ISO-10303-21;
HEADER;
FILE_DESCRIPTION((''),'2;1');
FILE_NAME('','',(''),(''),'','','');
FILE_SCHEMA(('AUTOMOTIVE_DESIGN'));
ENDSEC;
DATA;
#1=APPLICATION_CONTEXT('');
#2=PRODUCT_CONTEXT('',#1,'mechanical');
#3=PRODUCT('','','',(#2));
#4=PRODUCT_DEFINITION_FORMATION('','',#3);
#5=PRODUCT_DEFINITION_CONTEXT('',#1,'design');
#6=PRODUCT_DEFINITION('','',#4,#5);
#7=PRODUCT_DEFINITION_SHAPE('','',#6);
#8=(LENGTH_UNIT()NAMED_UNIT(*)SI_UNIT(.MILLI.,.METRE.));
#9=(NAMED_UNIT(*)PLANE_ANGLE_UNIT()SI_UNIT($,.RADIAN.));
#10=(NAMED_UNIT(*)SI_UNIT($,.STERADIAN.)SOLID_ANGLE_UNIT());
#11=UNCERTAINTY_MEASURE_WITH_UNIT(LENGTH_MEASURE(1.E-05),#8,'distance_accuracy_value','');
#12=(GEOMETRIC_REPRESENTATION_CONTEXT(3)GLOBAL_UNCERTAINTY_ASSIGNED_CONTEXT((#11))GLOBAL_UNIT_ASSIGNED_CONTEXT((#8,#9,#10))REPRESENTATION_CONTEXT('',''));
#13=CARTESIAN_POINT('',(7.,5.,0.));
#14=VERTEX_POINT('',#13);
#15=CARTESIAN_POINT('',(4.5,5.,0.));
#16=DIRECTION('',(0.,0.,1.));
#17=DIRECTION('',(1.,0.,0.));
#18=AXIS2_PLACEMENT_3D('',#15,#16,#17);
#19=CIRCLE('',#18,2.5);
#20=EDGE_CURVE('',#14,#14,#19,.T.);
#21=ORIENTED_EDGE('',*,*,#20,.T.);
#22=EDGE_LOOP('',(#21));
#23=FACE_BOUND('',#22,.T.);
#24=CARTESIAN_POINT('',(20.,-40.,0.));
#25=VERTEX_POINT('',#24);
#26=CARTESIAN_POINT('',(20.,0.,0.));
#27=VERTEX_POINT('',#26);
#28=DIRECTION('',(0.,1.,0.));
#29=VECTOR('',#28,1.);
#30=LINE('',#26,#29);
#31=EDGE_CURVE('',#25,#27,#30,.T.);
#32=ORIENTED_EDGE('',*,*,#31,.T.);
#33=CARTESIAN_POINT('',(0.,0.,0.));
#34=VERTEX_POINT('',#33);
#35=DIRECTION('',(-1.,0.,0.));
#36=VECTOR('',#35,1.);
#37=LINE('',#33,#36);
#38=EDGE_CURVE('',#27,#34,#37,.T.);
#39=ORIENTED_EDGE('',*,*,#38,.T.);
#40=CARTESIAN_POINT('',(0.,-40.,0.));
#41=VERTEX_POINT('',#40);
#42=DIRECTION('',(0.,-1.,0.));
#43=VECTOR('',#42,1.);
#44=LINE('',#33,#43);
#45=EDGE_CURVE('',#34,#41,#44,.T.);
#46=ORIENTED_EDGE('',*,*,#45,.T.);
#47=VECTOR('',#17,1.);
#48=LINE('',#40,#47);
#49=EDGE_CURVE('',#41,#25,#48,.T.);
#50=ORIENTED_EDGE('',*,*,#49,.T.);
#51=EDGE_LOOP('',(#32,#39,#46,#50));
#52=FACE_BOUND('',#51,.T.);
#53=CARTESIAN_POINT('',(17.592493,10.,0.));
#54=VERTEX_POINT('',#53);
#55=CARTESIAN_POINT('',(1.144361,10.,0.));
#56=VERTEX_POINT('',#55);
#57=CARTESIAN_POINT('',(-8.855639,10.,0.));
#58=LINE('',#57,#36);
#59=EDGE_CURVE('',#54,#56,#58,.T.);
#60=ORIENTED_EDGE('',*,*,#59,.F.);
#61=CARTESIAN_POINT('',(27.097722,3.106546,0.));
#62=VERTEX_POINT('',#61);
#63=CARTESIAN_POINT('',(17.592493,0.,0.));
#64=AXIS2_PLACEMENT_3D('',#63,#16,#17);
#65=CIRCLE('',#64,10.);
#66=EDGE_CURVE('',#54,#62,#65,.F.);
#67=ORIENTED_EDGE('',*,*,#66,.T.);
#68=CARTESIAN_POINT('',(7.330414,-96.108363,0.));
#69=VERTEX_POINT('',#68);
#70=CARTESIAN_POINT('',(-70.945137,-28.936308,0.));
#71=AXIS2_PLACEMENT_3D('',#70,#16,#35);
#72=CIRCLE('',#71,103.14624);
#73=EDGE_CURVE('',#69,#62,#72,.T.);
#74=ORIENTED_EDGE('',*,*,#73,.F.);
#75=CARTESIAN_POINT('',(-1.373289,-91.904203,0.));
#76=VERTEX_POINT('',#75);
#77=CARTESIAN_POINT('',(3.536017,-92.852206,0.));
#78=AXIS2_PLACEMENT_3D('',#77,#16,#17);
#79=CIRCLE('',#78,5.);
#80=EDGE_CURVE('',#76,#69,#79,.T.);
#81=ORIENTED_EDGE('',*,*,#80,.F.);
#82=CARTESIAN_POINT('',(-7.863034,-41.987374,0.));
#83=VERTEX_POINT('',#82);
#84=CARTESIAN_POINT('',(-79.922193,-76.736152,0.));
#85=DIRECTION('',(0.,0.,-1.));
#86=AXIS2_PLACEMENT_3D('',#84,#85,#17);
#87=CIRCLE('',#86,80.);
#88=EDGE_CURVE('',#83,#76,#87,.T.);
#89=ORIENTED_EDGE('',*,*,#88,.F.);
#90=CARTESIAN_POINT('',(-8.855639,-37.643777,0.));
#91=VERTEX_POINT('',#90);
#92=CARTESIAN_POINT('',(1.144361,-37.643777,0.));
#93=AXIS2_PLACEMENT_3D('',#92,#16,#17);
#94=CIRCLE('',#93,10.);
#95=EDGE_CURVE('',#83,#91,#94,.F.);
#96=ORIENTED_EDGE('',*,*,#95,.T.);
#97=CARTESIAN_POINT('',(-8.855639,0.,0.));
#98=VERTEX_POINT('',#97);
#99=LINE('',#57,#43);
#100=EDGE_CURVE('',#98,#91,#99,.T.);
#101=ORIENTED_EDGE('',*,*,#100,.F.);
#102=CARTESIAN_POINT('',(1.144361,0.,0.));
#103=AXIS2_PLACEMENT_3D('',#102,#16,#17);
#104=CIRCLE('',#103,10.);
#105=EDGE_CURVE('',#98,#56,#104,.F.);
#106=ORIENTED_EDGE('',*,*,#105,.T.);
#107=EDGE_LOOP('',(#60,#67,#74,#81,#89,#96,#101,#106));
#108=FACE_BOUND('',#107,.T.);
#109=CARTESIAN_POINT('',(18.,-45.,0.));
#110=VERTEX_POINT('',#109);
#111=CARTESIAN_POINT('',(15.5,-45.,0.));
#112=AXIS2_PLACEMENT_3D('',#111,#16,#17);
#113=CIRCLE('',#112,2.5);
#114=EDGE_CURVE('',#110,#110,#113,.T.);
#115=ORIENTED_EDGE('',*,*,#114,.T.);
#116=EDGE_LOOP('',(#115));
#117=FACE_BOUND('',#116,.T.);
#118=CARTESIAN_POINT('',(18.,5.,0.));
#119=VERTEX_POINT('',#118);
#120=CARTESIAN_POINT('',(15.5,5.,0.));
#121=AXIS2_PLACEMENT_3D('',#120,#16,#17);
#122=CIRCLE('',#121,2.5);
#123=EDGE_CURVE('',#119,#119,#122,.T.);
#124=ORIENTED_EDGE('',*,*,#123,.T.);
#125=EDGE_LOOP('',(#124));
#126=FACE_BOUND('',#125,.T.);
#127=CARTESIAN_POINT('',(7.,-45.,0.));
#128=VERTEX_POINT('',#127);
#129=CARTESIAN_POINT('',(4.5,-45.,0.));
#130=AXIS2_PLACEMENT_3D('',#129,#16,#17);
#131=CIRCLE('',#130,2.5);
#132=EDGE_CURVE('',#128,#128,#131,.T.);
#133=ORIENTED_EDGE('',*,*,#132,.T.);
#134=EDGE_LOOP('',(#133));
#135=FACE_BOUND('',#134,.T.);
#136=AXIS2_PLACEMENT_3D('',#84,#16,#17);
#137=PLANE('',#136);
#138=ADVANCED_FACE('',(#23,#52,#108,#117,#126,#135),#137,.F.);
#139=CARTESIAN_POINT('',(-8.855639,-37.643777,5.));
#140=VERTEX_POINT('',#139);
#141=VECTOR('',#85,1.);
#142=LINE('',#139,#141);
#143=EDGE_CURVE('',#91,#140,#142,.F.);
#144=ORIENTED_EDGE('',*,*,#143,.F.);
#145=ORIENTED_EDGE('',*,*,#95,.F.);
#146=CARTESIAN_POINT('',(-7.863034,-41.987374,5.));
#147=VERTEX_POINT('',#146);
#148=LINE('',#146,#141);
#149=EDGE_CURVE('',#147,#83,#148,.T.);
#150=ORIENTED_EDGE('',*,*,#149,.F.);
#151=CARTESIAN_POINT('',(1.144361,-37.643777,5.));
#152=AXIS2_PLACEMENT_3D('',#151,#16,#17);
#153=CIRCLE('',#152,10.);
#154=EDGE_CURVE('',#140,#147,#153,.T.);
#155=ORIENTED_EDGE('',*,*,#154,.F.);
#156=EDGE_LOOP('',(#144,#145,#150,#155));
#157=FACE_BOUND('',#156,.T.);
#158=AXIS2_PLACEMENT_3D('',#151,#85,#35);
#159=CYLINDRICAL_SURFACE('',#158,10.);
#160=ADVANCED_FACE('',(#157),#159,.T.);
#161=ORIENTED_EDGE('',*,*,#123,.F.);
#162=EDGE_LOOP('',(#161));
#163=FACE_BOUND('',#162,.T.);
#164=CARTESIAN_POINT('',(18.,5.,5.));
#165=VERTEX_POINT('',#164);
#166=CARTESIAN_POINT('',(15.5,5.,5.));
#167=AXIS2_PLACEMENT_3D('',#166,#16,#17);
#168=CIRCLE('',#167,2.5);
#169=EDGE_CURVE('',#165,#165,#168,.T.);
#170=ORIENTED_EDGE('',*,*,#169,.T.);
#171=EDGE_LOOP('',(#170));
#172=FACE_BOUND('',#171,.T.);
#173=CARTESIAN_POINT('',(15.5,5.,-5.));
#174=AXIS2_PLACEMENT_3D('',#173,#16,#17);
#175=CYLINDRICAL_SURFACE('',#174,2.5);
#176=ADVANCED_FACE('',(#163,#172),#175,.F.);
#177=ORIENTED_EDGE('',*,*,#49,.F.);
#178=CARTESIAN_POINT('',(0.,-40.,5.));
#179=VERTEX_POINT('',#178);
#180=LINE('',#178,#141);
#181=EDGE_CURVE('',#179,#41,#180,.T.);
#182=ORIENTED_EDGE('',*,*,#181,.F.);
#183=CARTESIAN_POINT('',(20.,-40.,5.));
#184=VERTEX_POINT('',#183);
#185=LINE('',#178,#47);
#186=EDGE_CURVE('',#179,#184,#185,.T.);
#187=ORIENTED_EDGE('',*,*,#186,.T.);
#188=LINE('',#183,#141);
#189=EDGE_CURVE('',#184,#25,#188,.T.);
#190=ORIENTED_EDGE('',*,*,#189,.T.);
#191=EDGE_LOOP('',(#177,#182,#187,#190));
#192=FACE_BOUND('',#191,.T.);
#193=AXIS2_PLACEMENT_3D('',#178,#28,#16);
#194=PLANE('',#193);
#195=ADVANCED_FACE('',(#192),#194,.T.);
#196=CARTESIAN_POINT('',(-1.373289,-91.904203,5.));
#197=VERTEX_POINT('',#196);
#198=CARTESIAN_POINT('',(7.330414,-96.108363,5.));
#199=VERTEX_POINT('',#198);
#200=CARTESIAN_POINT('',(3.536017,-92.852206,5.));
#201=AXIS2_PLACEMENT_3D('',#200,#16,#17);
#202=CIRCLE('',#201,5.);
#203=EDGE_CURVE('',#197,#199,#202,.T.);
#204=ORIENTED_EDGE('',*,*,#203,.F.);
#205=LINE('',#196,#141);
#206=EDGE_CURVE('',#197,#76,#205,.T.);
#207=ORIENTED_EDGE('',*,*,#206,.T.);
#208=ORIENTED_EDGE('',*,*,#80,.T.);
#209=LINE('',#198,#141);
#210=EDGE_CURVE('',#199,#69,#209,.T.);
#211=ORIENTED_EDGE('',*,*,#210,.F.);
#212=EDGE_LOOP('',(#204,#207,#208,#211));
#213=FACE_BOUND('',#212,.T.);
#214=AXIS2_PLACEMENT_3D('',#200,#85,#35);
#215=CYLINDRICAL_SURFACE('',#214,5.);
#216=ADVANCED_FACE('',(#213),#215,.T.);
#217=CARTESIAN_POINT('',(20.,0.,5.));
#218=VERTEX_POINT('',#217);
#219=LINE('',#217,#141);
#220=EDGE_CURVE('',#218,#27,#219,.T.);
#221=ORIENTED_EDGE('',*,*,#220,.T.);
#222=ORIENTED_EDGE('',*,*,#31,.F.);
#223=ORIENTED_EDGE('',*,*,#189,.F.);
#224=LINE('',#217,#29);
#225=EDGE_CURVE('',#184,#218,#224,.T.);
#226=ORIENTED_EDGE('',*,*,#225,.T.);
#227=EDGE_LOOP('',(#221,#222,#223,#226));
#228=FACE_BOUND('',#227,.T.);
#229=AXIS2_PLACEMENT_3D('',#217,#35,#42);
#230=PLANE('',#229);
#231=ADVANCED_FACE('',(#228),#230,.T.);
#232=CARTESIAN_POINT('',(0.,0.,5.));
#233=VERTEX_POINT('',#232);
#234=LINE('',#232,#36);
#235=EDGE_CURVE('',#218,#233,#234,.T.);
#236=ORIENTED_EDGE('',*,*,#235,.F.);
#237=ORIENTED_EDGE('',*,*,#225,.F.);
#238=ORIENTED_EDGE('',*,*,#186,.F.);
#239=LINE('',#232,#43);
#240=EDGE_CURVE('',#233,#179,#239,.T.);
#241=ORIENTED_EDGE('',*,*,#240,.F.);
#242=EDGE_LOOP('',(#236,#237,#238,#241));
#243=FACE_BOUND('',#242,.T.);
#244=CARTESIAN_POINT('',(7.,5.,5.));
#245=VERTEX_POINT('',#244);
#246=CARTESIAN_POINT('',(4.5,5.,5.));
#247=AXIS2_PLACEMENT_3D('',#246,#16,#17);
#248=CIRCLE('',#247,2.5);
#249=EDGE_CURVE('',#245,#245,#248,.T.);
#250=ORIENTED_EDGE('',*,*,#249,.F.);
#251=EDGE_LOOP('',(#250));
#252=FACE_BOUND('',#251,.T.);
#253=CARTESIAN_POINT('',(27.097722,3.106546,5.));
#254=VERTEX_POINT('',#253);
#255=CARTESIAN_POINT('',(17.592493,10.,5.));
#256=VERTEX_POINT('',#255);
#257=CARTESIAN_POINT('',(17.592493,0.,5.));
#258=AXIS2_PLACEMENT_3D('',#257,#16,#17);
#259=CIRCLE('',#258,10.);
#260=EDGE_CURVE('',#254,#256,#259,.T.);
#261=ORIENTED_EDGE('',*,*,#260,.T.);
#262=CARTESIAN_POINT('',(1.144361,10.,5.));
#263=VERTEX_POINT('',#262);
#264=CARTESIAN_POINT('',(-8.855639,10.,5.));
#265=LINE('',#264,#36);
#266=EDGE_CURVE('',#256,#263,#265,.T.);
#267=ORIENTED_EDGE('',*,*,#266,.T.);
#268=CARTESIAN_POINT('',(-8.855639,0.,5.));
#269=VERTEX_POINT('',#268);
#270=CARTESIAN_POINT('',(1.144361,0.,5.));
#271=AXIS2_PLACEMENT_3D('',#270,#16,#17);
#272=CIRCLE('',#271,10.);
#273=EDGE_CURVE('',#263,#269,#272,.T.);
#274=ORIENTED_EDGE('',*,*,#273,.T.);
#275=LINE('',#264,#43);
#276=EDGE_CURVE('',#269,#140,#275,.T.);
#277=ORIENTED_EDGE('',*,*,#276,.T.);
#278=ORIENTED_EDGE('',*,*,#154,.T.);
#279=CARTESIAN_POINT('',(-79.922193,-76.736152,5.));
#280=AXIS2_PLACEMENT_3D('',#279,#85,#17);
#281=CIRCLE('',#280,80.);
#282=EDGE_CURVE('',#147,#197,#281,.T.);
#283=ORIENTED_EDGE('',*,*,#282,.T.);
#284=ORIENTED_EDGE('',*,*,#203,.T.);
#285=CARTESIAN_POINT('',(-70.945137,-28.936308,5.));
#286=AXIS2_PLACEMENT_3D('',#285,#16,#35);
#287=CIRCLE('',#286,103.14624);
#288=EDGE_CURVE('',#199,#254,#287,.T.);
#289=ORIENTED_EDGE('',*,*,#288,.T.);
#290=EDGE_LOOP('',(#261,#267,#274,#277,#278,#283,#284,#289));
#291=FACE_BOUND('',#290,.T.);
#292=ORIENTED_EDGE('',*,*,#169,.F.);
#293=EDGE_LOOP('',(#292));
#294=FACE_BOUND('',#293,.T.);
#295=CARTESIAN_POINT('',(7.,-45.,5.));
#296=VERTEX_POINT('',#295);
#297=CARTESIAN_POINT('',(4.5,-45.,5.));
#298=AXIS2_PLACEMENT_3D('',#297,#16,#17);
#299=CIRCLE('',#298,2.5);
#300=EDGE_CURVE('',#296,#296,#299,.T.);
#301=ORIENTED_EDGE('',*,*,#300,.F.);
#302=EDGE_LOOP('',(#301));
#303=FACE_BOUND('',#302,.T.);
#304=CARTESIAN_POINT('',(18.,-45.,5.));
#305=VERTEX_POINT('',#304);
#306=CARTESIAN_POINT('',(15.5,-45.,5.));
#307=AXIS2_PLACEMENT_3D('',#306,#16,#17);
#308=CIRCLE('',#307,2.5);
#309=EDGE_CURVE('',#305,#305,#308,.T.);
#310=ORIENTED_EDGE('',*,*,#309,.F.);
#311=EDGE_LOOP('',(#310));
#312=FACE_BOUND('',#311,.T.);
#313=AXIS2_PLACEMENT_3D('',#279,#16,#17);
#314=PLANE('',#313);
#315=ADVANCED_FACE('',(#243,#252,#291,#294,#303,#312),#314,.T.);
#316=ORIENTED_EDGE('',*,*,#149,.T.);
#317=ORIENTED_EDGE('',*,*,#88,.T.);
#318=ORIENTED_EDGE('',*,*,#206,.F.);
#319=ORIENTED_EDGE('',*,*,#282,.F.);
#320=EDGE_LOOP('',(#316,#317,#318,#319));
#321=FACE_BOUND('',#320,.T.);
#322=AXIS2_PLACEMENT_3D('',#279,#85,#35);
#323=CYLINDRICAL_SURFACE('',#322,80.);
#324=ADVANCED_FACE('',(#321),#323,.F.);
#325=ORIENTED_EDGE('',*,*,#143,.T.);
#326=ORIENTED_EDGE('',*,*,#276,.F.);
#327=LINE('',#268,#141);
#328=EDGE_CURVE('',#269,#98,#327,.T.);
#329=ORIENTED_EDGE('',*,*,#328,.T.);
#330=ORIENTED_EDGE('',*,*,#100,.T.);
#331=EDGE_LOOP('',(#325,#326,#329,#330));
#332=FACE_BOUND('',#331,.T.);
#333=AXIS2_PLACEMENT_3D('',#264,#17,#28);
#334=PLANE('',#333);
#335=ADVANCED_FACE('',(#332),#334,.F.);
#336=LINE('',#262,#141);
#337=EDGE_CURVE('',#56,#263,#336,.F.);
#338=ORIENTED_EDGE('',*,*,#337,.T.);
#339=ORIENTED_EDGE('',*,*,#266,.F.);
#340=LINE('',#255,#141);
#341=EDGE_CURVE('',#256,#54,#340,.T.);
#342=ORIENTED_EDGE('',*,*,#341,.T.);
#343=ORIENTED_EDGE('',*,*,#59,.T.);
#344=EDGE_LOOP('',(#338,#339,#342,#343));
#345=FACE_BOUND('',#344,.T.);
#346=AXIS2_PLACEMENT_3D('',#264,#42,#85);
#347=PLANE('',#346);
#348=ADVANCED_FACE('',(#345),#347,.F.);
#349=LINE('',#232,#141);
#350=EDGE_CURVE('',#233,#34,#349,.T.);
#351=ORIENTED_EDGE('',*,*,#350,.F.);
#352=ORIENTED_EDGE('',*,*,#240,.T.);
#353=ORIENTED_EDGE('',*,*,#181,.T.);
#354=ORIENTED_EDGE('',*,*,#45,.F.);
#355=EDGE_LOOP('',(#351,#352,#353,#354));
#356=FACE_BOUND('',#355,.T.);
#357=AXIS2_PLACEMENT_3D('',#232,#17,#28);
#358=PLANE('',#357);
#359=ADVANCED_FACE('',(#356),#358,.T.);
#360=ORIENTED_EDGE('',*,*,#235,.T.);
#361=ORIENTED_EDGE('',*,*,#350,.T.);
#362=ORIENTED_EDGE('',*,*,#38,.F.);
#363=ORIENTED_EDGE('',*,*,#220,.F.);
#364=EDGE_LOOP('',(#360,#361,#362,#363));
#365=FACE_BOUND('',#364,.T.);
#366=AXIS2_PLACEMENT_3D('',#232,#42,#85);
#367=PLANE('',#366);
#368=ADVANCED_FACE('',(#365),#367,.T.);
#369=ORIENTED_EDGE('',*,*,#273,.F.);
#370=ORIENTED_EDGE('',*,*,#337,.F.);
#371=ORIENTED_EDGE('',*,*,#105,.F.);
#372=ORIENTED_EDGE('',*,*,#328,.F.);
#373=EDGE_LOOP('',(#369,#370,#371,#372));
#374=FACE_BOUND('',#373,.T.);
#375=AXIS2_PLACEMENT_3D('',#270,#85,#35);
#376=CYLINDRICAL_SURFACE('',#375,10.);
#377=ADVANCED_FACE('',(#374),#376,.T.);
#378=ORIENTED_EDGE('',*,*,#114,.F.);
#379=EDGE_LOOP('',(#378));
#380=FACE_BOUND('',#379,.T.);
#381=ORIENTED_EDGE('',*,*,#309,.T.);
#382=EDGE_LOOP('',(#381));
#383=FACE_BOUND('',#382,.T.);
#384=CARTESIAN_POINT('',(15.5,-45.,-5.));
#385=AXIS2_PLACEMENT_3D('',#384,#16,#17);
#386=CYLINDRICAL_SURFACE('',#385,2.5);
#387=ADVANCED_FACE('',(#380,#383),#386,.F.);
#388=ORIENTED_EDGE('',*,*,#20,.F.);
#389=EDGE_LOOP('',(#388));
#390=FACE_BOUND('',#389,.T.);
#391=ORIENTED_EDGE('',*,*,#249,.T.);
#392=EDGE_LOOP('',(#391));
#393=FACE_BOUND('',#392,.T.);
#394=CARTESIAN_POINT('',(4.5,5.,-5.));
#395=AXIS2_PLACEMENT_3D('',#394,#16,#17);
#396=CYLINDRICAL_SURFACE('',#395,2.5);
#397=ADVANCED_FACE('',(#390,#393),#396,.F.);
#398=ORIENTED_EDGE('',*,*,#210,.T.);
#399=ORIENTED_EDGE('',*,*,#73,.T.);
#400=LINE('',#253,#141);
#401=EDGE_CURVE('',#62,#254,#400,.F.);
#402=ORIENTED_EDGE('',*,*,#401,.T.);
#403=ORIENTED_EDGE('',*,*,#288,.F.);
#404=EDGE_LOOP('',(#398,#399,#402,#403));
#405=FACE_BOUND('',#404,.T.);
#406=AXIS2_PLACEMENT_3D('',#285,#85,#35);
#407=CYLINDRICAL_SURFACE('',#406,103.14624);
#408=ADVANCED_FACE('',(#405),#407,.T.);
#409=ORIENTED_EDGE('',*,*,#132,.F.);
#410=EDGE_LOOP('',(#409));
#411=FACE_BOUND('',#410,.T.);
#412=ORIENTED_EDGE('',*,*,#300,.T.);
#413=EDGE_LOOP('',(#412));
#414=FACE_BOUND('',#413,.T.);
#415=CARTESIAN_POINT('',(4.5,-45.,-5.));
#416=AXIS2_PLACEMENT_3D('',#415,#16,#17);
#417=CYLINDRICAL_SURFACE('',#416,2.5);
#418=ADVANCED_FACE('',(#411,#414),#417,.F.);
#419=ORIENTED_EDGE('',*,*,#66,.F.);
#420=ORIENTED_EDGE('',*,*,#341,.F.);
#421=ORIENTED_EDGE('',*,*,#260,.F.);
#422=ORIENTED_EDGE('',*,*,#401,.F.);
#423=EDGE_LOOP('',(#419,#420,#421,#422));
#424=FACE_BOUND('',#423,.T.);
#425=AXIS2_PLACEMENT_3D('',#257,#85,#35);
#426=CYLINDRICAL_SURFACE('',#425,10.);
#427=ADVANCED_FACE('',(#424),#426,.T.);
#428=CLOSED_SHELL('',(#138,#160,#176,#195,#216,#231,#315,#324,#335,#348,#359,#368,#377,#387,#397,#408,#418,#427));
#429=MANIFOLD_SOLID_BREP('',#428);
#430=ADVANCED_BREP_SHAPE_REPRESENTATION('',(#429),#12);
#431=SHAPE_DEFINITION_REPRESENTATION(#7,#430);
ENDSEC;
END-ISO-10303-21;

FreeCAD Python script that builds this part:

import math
import FreeCAD as App
import Part
import Sketcher
from FreeCAD import Vector
Q = App.Units.Quantity


def edges_at(feature, points):
    """Names of the edges that pass closest to the given points."""
    edges = feature.Shape.Edges
    near = lambda p: min(range(len(edges)), key=lambda i: edges[i].distToShape(Part.Vertex(*p))[0])
    return sorted({f"Edge{near(p) + 1}" for p in points})

doc = App.newDocument("Part")
body = doc.addObject("PartDesign::Body", "Body")

# Sketch on XY plane
sketch1 = body.newObject("Sketcher::SketchObject", "Sketch")
sketch1.AttachmentSupport = (doc.getObject("XY_Plane"), [""])
sketch1.MapMode = "FlatFace"
sketch1.addGeometry([
    Part.LineSegment(Vector(25, 10, 0), Vector(-9, 10, 0)),  # 0
    Part.LineSegment(Vector(-9, 10, 0), Vector(-9, -40, 0)),  # 1
    Part.ArcOfCircle(Part.Circle(Vector(-80, -77, 0), Vector(0, 0, 1), 80), math.radians(-11), math.radians(27)),  # 2
    Part.ArcOfCircle(Part.Circle(Vector(4, -93, 0), Vector(0, 0, 1), 5), math.radians(169), math.radians(319)),  # 3
    Part.ArcOfCircle(Part.Circle(Vector(-71, -29, 0), Vector(0, 0, 1), 103), math.radians(-41), math.radians(22)),  # 4
    Part.LineSegment(Vector(0, -40, 0), Vector(0, 0, 0)),  # 5
    Part.LineSegment(Vector(0, 0, 0), Vector(20, 0, 0)),  # 6
    Part.LineSegment(Vector(20, 0, 0), Vector(20, -40, 0)),  # 7
    Part.LineSegment(Vector(20, -40, 0), Vector(0, -40, 0)),  # 8
], False)
sketch1.addConstraint([
    Sketcher.Constraint("Coincident", 0, 2, 1, 1),
    Sketcher.Constraint("Coincident", 1, 2, 2, 2),
    Sketcher.Constraint("Tangent", 2, 1, 3, 1),
    Sketcher.Constraint("Tangent", 3, 2, 4, 1),
    Sketcher.Constraint("Coincident", 4, 2, 0, 1),
    Sketcher.Constraint("Coincident", 5, 2, 6, 1),
    Sketcher.Constraint("Coincident", 6, 2, 7, 1),
    Sketcher.Constraint("Coincident", 7, 2, 8, 1),
    Sketcher.Constraint("Coincident", 8, 2, 5, 1),
    Sketcher.Constraint("Horizontal", 0),
    Sketcher.Constraint("Vertical", 1),
    Sketcher.Constraint("Vertical", 5),
    Sketcher.Constraint("Horizontal", 6),
    Sketcher.Constraint("Vertical", 7),
    Sketcher.Constraint("Horizontal", 8),
    Sketcher.Constraint("Coincident", 5, 2, -1, 1),
    Sketcher.Constraint("Horizontal", 1, 2, 7, 2),
    Sketcher.Constraint("Radius", 2, Q("80 mm")),
    Sketcher.Constraint("Radius", 3, Q("5 mm")),
    Sketcher.Constraint("DistanceX", 6, 1, 6, 2, Q("20 mm")),
    Sketcher.Constraint("DistanceY", 1, 2, 1, 1, Q("50 mm")),
    Sketcher.Constraint("DistanceY", 5, 1, 5, 2, Q("40 mm")),
    Sketcher.Constraint("Radius", 4, Q("103.14624 mm")),
    Sketcher.Constraint("DistanceY", 3, 3, 4, 3, Q("63.915898 mm")),
    Sketcher.Constraint("DistanceX", 4, 3, 0, 2, Q("62.089498 mm")),
    Sketcher.Constraint("DistanceX", 0, 2, 0, 1, Q("33.425478 mm")),
    Sketcher.Constraint("DistanceX", 0, 2, -1, 1, Q("8.855639 mm")),
])
pad1 = body.newObject("PartDesign::Pad", "Pad")
pad1.Profile = sketch1
pad1.Length = 5
doc.recompute()

fillet = body.newObject("PartDesign::Fillet", "Fillet")
fillet.Base = (pad1, edges_at(pad1, [(24.57, 10, 2.5)]))
fillet.Radius = 10
doc.recompute()

fillet2 = body.newObject("PartDesign::Fillet", "Fillet001")
fillet2.Base = (fillet, edges_at(fillet, [(-8.856, -40, 2.5), (-8.856, 10, 2.5)]))
fillet2.Radius = 10

# Sketch on XY plane
sketch2 = body.newObject("Sketcher::SketchObject", "Sketch001")
sketch2.AttachmentSupport = (doc.getObject("XY_Plane"), [""])
sketch2.MapMode = "FlatFace"
sketch2.AttachmentOffset = App.Placement(Vector(0, 0, 5), App.Rotation())
sketch2.addGeometry([
    Part.Circle(Vector(4.5, 5, 0), Vector(0, 0, 1), 2.5),
    Part.Circle(Vector(15.5, 5, 0), Vector(0, 0, 1), 2.5),
    Part.Circle(Vector(4.5, -45, 0), Vector(0, 0, 1), 2.5),
    Part.Circle(Vector(15.5, -45, 0), Vector(0, 0, 1), 2.5),
], False)
sketch2.addConstraint([
    Sketcher.Constraint("Equal", 0, 1),
    Sketcher.Constraint("Equal", 1, 2),
    Sketcher.Constraint("Equal", 2, 3),
    Sketcher.Constraint("Horizontal", 0, 3, 1, 3),
    Sketcher.Constraint("Horizontal", 2, 3, 3, 3),
    Sketcher.Constraint("Vertical", 0, 3, 2, 3),
    Sketcher.Constraint("Vertical", 1, 3, 3, 3),
    Sketcher.Constraint("Diameter", 0, Q("5 mm")),
    Sketcher.Constraint("DistanceY", -1, 1, 0, 3, Q("5 mm")),
    Sketcher.Constraint("DistanceY", 2, 3, -1, 1, Q("45 mm")),
    Sketcher.Constraint("DistanceX", 0, 3, 1, 3, Q("11 mm")),
    Sketcher.Constraint("DistanceX", -1, 1, 0, 3, Q("4.5 mm")),
])
pocket1 = body.newObject("PartDesign::Pocket", "Pocket")
pocket1.Profile = sketch2
pocket1.Length = 10

doc.recompute()
